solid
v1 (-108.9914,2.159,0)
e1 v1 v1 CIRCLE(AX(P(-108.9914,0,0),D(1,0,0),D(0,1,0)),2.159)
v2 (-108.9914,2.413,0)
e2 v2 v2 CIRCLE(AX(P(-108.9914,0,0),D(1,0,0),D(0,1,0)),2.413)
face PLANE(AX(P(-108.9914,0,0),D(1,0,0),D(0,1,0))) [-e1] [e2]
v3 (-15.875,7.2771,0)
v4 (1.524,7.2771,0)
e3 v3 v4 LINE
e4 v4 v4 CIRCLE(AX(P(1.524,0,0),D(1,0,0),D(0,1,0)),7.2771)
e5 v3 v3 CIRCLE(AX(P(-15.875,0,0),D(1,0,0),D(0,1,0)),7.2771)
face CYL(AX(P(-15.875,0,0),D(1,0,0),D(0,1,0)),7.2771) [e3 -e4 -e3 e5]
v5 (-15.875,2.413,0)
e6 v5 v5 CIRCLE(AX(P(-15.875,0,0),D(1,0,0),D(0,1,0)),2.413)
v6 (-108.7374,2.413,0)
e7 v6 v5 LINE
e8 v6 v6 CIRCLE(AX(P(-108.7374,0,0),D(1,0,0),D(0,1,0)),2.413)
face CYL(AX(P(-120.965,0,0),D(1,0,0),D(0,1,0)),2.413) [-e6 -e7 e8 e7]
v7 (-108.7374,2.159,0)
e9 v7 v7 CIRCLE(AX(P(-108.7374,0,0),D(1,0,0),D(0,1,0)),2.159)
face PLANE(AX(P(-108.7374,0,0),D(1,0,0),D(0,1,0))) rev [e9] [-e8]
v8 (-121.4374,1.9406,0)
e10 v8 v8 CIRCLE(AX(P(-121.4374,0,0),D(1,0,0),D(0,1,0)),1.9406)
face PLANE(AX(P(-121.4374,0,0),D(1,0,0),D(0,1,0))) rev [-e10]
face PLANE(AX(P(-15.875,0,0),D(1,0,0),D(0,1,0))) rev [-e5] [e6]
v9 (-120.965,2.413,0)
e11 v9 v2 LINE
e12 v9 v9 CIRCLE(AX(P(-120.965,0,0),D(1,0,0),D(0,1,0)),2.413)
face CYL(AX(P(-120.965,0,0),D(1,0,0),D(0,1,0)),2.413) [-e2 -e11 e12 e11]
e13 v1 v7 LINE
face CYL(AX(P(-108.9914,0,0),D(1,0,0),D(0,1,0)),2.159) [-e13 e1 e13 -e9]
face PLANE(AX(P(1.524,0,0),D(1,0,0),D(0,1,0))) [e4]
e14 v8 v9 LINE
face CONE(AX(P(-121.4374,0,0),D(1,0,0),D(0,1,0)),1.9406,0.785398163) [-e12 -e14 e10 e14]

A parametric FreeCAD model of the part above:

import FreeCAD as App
import Part
import Sketcher

V = App.Vector
Q = App.Units.Quantity


def add_polygon(sketch, points):
    """Adds a closed chain of lines whose ends are joined by coincident constraints."""
    first, n = sketch.GeometryCount, len(points)
    for a, b in zip(points, points[1:] + points[:1]):
        sketch.addGeometry(Part.LineSegment(App.Vector(*a, 0), App.Vector(*b, 0)), False)
    for i in range(n):
        sketch.addConstraint(Sketcher.Constraint("Coincident", first + i, 2, first + (i + 1) % n, 1))

doc = App.newDocument("Part")
body = doc.addObject("PartDesign::Body", "Body")

# Sketch on XY plane
sketch1 = body.newObject("Sketcher::SketchObject", "Sketch")
sketch1.AttachmentSupport = (doc.getObject("XY_Plane"), [""])
sketch1.MapMode = "FlatFace"
add_polygon(sketch1, [(-121.4, 0), (0, 0), (0, 2.4), (-121, 2.4), (-121.4, 1.9)])  # lines 0-4
sketch1.addConstraint([
    Sketcher.Constraint("Horizontal", 0),
    Sketcher.Constraint("Vertical", 1),
    Sketcher.Constraint("Horizontal", 2),
    Sketcher.Constraint("Vertical", 4),
    Sketcher.Constraint("Coincident", 0, 2, -1, 1),
    Sketcher.Constraint("Angle", 3, Q("-135 deg")),
    Sketcher.Constraint("DistanceX", 0, 1, 0, 2, Q("4.781 in")),
    Sketcher.Constraint("DistanceY", 1, 1, 1, 2, Q("0.095 in")),
    Sketcher.Constraint("DistanceX", 2, 2, 2, 1, Q("4.7624 in")),
])
revolution = body.newObject("PartDesign::Revolution", "Revolution")
revolution.Profile = sketch1
revolution.ReferenceAxis = (sketch1, ["H_Axis"])
revolution.Angle = 360

# Sketch on XY plane
sketch2 = body.newObject("Sketcher::SketchObject", "Sketch001")
sketch2.AttachmentSupport = (doc.getObject("XY_Plane"), [""])
sketch2.MapMode = "FlatFace"
add_polygon(sketch2, [(-108.74, 2.41), (-108.99, 2.41), (-108.99, 2.16), (-108.74, 2.16)])  # lines 0-3
sketch2.addConstraint([
    Sketcher.Constraint("Horizontal", 0),
    Sketcher.Constraint("Vertical", 1),
    Sketcher.Constraint("Horizontal", 2),
    Sketcher.Constraint("Vertical", 3),
    Sketcher.Constraint("Equal", 2, 1),
    Sketcher.Constraint("DistanceX", 0, 2, 0, 1, Q("0.01 in")),
    Sketcher.Constraint("DistanceX", 0, 2, -1, 1, Q("4.291 in")),
    Sketcher.Constraint("DistanceY", -1, 1, 0, 2, Q("0.095 in")),
])
groove = body.newObject("PartDesign::Groove", "Groove")
groove.Profile = sketch2
groove.ReferenceAxis = (sketch2, ["H_Axis"])
groove.Angle = 360

# Sketch on XY plane
sketch3 = body.newObject("Sketcher::SketchObject", "Sketch002")
sketch3.AttachmentSupport = (doc.getObject("XY_Plane"), [""])
sketch3.MapMode = "FlatFace"
add_polygon(sketch3, [(-16, 0), (2, 0), (2, 7), (-16, 7)])  # lines 0-3
sketch3.addConstraint([
    Sketcher.Constraint("Horizontal", 0),
    Sketcher.Constraint("Vertical", 1),
    Sketcher.Constraint("Horizontal", 2),
    Sketcher.Constraint("Vertical", 3),
    Sketcher.Constraint("PointOnObject", 0, 2, -1),
    Sketcher.Constraint("DistanceX", 0, 1, 0, 2, Q("0.685 in")),
    Sketcher.Constraint("DistanceX", -1, 1, 0, 2, Q("0.06 in")),
    Sketcher.Constraint("DistanceY", 1, 1, 1, 2, Q("0.2865 in")),
])
revolution2 = body.newObject("PartDesign::Revolution", "Revolution001")
revolution2.Profile = sketch3
revolution2.ReferenceAxis = (sketch3, ["H_Axis"])
revolution2.Angle = 360

doc.recompute()
